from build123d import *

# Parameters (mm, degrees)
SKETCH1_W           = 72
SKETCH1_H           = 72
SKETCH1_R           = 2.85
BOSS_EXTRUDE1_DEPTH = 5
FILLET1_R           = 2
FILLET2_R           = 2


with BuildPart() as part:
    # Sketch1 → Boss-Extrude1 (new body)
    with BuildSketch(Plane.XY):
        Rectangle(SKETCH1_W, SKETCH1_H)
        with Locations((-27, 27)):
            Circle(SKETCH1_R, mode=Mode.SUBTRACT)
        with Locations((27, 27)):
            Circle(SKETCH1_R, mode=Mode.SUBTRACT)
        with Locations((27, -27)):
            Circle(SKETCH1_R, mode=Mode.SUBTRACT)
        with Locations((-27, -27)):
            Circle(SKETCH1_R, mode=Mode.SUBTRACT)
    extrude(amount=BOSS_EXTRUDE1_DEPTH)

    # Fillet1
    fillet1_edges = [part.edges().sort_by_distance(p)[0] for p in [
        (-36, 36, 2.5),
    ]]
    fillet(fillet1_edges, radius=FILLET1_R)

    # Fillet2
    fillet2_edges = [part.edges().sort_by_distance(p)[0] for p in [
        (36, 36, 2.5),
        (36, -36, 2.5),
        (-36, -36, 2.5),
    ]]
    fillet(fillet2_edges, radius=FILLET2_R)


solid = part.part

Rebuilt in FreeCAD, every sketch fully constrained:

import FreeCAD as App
import Part
import Sketcher

V = App.Vector


def edges_at(feature, points):
    """Names of the edges that pass closest to the given points."""
    edges = feature.Shape.Edges
    near = lambda p: min(range(len(edges)), key=lambda i: edges[i].distToShape(Part.Vertex(*p))[0])
    return sorted({f"Edge{near(p) + 1}" for p in points})


def add_polygon(sketch, points):
    """Adds a closed chain of lines whose ends are joined by coincident constraints."""
    first, n = sketch.GeometryCount, len(points)
    for a, b in zip(points, points[1:] + points[:1]):
        sketch.addGeometry(Part.LineSegment(App.Vector(*a, 0), App.Vector(*b, 0)), False)
    for i in range(n):
        sketch.addConstraint(Sketcher.Constraint("Coincident", first + i, 2, first + (i + 1) % n, 1))

doc = App.newDocument("Part")
params = doc.addObject("Spreadsheet::Sheet", "Params")
for row, (alias, value) in enumerate([
    ("sketch1_diameter", "5.7 mm"),
    ("sketch1_width", "72 mm"),
    ("pad1_length", "5 mm"),
    ("fillet_radius", "2 mm"),
    ("fillet2_radius", "2 mm"),
], start=1):
    params.set(f"A{row}", alias)
    params.set(f"B{row}", "=" + value)
    params.setAlias(f"B{row}", alias)

body = doc.addObject("PartDesign::Body", "Body")

# Sketch on XY plane
sketch1 = body.newObject("Sketcher::SketchObject", "Sketch")
sketch1.AttachmentSupport = (doc.getObject("XY_Plane"), [""])
sketch1.MapMode = "FlatFace"
add_polygon(sketch1, [(-36, 36), (-36, -36), (36, -36), (36, 36)])  # lines 0-3
sketch1.addGeometry(Part.Circle(V(-27, -27, 0), V(0, 0, 1), 2.9), False)  # 4
sketch1.addGeometry(Part.Circle(V(27, -27, 0), V(0, 0, 1), 2.9), False)  # 5
sketch1.addGeometry(Part.Circle(V(-27, 27, 0), V(0, 0, 1), 2.9), False)  # 6
sketch1.addGeometry(Part.Circle(V(27, 27, 0), V(0, 0, 1), 2.9), False)  # 7
sketch1.addConstraint([
    Sketcher.Constraint("Vertical", 0),
    Sketcher.Constraint("Horizontal", 1),
    Sketcher.Constraint("Vertical", 2),
    Sketcher.Constraint("Horizontal", 3),
    Sketcher.Constraint("Equal", 4, 5),
    Sketcher.Constraint("Equal", 5, 6),
    Sketcher.Constraint("Equal", 6, 7),
    Sketcher.Constraint("Symmetric", 5, 3, 6, 3, -1, 1),
    Sketcher.Constraint("Symmetric", 4, 3, 7, 3, -1, 1),
    Sketcher.Constraint("Symmetric", 0, 2, 2, 2, -1, 1),
    Sketcher.Constraint("Symmetric", 4, 3, 5, 3, -2),
    Sketcher.Constraint("Equal", 3, 0),
    Sketcher.Constraint("Diameter", 4, 5.7),
    Sketcher.Constraint("DistanceX", 1, 1, 1, 2, 72.0),
    Sketcher.Constraint("DistanceX", 4, 3, -1, 1, 27.0),
    Sketcher.Constraint("DistanceY", 4, 3, -1, 1, 27.0),
])
sketch1.setExpression("Constraints[16]", "Params.sketch1_diameter")
sketch1.setExpression("Constraints[17]", "Params.sketch1_width")
pad1 = body.newObject("PartDesign::Pad", "Pad")
pad1.Profile = sketch1
pad1.setExpression("Length", "Params.pad1_length")
doc.recompute()

fillet = body.newObject("PartDesign::Fillet", "Fillet")
fillet.Base = (pad1, edges_at(pad1, [(-36, 36, 2.5)]))
fillet.setExpression("Radius", "Params.fillet_radius")
doc.recompute()

fillet2 = body.newObject("PartDesign::Fillet", "Fillet001")
fillet2.Base = (fillet, edges_at(fillet, [(36, 36, 2.5), (36, -36, 2.5), (-36, -36, 2.5)]))
fillet2.setExpression("Radius", "Params.fillet2_radius")

doc.recompute()
